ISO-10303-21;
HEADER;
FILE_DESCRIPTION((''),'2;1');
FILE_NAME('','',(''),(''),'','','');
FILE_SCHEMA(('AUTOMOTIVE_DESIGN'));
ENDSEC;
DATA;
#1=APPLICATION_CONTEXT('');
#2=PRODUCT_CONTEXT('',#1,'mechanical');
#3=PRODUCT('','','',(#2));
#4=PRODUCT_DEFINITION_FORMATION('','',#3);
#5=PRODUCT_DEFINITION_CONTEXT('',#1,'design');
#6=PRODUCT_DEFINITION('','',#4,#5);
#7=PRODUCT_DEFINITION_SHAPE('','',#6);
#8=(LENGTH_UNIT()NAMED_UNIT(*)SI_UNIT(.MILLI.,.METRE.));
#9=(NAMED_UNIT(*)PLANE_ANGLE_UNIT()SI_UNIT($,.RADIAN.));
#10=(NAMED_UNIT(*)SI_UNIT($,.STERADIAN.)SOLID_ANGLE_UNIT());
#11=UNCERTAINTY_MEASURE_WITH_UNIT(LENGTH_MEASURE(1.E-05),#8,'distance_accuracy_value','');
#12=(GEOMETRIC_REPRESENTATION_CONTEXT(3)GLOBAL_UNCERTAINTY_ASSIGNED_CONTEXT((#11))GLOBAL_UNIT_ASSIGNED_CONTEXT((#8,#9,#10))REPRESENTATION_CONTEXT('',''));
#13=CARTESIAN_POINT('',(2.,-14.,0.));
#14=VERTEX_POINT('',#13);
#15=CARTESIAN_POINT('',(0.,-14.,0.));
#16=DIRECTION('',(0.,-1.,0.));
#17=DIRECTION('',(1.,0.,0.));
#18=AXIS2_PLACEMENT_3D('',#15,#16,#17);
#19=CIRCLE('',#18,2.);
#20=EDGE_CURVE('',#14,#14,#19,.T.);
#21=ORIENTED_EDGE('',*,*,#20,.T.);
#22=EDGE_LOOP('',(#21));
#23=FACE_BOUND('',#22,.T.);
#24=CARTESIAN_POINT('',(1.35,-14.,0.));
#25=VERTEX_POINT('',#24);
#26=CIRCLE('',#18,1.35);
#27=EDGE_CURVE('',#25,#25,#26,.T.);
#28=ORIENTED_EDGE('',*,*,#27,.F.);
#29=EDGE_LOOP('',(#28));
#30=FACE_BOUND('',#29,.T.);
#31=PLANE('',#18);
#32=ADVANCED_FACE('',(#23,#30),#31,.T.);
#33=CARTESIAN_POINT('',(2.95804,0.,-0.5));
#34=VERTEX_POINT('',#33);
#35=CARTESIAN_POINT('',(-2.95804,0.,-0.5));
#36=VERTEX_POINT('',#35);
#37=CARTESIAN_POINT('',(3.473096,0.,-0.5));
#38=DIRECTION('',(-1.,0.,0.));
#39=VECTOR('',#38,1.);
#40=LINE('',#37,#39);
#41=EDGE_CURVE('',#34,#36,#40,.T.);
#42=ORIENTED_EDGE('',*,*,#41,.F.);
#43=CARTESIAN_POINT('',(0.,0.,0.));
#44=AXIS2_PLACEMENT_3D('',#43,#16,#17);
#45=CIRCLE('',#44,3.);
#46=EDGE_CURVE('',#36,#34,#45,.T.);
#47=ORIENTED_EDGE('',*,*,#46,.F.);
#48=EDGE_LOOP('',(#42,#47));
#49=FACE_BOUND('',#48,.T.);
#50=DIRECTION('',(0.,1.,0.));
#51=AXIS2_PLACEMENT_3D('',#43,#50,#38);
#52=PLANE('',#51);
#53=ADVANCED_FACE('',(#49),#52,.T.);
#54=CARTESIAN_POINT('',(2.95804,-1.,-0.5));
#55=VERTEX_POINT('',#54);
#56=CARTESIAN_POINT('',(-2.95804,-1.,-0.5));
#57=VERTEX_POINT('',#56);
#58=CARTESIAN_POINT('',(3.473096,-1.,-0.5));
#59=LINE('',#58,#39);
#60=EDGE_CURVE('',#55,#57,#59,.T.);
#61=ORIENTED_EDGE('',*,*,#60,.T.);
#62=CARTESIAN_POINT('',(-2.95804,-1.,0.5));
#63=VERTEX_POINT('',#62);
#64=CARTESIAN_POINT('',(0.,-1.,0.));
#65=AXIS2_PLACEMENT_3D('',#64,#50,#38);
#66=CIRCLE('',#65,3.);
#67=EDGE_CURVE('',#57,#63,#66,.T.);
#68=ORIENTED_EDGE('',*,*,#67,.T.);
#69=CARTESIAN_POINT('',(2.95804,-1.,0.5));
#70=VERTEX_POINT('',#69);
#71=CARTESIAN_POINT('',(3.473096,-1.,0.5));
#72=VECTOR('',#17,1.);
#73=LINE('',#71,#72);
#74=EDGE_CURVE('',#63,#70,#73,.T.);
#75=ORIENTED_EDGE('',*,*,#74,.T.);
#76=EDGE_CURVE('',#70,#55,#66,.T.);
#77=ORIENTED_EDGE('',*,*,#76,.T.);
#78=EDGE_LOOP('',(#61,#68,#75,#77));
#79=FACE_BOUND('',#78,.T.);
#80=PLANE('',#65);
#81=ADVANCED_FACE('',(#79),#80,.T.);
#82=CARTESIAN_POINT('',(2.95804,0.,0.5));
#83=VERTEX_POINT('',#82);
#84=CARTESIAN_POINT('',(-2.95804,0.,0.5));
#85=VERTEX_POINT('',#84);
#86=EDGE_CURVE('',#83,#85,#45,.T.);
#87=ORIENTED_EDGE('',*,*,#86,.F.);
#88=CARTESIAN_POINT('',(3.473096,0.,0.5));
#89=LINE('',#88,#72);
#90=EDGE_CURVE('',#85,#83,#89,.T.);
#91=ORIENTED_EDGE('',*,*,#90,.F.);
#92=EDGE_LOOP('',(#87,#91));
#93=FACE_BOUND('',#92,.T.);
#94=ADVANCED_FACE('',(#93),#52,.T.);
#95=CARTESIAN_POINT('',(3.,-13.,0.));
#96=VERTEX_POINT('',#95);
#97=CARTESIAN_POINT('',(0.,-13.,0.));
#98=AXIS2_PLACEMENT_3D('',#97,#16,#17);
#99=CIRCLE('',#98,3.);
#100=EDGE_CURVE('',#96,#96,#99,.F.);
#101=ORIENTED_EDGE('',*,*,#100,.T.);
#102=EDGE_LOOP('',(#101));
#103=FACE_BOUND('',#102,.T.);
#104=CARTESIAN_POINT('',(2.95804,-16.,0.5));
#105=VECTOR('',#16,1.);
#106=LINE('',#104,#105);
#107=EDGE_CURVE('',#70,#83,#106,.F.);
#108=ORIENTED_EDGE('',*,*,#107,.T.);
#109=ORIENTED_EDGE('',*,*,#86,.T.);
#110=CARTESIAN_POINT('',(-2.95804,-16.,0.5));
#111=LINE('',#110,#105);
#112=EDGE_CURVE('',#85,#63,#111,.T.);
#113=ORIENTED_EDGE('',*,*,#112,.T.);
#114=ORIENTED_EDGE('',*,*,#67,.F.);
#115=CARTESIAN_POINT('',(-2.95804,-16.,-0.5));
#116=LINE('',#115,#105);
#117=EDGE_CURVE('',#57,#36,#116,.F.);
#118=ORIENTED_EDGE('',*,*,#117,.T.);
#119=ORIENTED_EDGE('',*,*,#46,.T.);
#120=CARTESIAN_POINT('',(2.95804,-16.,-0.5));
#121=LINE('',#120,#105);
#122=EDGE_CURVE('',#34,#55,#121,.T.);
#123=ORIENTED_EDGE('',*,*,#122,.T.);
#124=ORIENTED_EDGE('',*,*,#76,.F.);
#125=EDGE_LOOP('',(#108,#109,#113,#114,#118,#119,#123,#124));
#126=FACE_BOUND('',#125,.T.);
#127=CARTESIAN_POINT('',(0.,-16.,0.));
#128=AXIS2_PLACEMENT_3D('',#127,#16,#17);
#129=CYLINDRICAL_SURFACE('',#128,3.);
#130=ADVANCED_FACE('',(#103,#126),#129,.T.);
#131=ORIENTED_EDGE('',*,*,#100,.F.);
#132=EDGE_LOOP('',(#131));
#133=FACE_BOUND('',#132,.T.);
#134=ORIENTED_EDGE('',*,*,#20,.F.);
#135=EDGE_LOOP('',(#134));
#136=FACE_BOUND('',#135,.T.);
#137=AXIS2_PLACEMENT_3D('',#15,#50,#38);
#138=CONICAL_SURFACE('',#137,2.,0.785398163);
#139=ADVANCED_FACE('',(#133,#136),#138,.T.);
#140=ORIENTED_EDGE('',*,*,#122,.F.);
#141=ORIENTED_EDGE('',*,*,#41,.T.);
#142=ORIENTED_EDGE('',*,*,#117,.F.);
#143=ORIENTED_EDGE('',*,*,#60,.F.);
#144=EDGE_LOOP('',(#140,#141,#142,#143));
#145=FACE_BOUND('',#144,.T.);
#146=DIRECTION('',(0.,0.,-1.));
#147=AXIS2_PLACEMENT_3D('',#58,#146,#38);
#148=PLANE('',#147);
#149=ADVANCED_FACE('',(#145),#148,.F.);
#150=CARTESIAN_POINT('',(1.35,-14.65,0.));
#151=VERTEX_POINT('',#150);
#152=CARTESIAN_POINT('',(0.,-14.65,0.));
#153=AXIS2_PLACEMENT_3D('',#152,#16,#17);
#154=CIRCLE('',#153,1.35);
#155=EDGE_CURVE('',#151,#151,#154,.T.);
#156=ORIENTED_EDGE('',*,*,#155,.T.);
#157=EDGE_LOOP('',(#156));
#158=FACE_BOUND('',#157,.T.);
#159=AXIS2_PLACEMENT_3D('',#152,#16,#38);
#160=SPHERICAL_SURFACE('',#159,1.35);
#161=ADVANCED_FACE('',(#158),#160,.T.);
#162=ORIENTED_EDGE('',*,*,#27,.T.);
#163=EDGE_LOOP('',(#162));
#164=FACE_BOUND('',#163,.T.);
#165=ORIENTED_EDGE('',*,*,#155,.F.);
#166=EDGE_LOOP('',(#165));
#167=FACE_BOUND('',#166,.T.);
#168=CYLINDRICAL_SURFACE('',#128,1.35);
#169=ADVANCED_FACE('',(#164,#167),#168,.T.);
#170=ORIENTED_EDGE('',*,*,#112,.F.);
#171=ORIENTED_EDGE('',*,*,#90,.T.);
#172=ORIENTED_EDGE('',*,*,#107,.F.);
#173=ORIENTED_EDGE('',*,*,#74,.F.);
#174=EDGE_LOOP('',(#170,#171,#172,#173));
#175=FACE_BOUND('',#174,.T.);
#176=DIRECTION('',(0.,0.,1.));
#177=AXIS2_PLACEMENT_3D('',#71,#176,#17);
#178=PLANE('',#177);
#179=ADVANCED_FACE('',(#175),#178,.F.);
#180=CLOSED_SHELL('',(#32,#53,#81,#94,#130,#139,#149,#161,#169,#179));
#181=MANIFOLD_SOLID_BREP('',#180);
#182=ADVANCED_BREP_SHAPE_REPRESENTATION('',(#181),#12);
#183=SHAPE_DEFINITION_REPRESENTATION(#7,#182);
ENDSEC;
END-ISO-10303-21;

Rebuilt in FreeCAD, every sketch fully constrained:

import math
import FreeCAD as App
import Part
import Sketcher
Q = App.Units.Quantity


def edges_at(feature, points):
    """Names of the edges that pass closest to the given points."""
    edges = feature.Shape.Edges
    near = lambda p: min(range(len(edges)), key=lambda i: edges[i].distToShape(Part.Vertex(*p))[0])
    return sorted({f"Edge{near(p) + 1}" for p in points})

doc = App.newDocument("Part")
body = doc.addObject("PartDesign::Body", "Body")

# Sketch on XY plane
sketch1 = body.newObject("Sketcher::SketchObject", "Sketch")
sketch1.AttachmentSupport = (doc.getObject("XY_Plane"), [""])
sketch1.MapMode = "FlatFace"
sketch1.addGeometry([
    Part.LineSegment(App.Vector(-1.4, -14, 0), App.Vector(-1.4, -14.7, 0)),  # 0
    Part.ArcOfCircle(Part.Circle(App.Vector(0, -14.7, 0), App.Vector(0, 0, 1), 1.3), math.radians(180), math.radians(270)),  # 1
    Part.LineSegment(App.Vector(0, -16, 0), App.Vector(0, 0, 0)),  # 2
    Part.LineSegment(App.Vector(0, 0, 0), App.Vector(-3, 0, 0)),  # 3
    Part.LineSegment(App.Vector(-3, 0, 0), App.Vector(-3, -14, 0)),  # 4
    Part.LineSegment(App.Vector(-3, -14, 0), App.Vector(-1.4, -14, 0)),  # 5
], False)
sketch1.addConstraint([
    Sketcher.Constraint("Tangent", 0, 2, 1, 1),
    Sketcher.Constraint("Coincident", 1, 2, 2, 1),
    Sketcher.Constraint("Coincident", 2, 2, 3, 1),
    Sketcher.Constraint("Coincident", 3, 2, 4, 1),
    Sketcher.Constraint("Coincident", 4, 2, 5, 1),
    Sketcher.Constraint("Coincident", 5, 2, 0, 1),
    Sketcher.Constraint("Vertical", 0),
    Sketcher.Constraint("Vertical", 2),
    Sketcher.Constraint("Horizontal", 3),
    Sketcher.Constraint("Vertical", 4),
    Sketcher.Constraint("Horizontal", 5),
    Sketcher.Constraint("Coincident", 2, 2, -1, 1),
    Sketcher.Constraint("PointOnObject", 1, 3, -2),
    Sketcher.Constraint("DistanceX", 3, 2, 3, 1, Q("3 mm")),
    Sketcher.Constraint("DistanceY", 2, 1, 2, 2, Q("16 mm")),
    Sketcher.Constraint("DistanceY", 4, 2, 4, 1, Q("14 mm")),
    Sketcher.Constraint("Radius", 1, Q("1.35 mm")),
])
revolution = body.newObject("PartDesign::Revolution", "Revolution")
revolution.Profile = sketch1
revolution.ReferenceAxis = (sketch1, ["V_Axis"])
revolution.Angle = 360
doc.recompute()

chamfer = body.newObject("PartDesign::Chamfer", "Chamfer")
chamfer.Base = (revolution, edges_at(revolution, [(-3, -14, 0)]))
chamfer.Size = 1

# Sketch on XZ plane
sketch2 = body.newObject("Sketcher::SketchObject", "Sketch001")
sketch2.AttachmentSupport = (doc.getObject("XZ_Plane"), [""])
sketch2.MapMode = "FlatFace"
sketch2.addGeometry([
    Part.LineSegment(App.Vector(-3.5, -0.5, 0), App.Vector(-3.5, 0.5, 0)),
    Part.LineSegment(App.Vector(-3.5, 0.5, 0), App.Vector(3.5, 0.5, 0)),
    Part.LineSegment(App.Vector(3.5, 0.5, 0), App.Vector(3.5, -0.5, 0)),
    Part.LineSegment(App.Vector(3.5, -0.5, 0), App.Vector(-3.5, -0.5, 0)),
], False)
sketch2.addConstraint([
    Sketcher.Constraint("Coincident", 0, 2, 1, 1),
    Sketcher.Constraint("Coincident", 1, 2, 2, 1),
    Sketcher.Constraint("Coincident", 2, 2, 3, 1),
    Sketcher.Constraint("Coincident", 3, 2, 0, 1),
    Sketcher.Constraint("Vertical", 0),
    Sketcher.Constraint("Horizontal", 1),
    Sketcher.Constraint("Vertical", 2),
    Sketcher.Constraint("Horizontal", 3),
    Sketcher.Constraint("Symmetric", 0, 2, 2, 2, -1, 1),
    Sketcher.Constraint("DistanceY", 0, 1, 0, 2, Q("1 mm")),
    Sketcher.Constraint("DistanceX", 1, 1, 1, 2, Q("6.946192 mm")),
])
pocket1 = body.newObject("PartDesign::Pocket", "Pocket")
pocket1.Profile = sketch2
pocket1.Length = 1
pocket1.Reversed = True

doc.recompute()
